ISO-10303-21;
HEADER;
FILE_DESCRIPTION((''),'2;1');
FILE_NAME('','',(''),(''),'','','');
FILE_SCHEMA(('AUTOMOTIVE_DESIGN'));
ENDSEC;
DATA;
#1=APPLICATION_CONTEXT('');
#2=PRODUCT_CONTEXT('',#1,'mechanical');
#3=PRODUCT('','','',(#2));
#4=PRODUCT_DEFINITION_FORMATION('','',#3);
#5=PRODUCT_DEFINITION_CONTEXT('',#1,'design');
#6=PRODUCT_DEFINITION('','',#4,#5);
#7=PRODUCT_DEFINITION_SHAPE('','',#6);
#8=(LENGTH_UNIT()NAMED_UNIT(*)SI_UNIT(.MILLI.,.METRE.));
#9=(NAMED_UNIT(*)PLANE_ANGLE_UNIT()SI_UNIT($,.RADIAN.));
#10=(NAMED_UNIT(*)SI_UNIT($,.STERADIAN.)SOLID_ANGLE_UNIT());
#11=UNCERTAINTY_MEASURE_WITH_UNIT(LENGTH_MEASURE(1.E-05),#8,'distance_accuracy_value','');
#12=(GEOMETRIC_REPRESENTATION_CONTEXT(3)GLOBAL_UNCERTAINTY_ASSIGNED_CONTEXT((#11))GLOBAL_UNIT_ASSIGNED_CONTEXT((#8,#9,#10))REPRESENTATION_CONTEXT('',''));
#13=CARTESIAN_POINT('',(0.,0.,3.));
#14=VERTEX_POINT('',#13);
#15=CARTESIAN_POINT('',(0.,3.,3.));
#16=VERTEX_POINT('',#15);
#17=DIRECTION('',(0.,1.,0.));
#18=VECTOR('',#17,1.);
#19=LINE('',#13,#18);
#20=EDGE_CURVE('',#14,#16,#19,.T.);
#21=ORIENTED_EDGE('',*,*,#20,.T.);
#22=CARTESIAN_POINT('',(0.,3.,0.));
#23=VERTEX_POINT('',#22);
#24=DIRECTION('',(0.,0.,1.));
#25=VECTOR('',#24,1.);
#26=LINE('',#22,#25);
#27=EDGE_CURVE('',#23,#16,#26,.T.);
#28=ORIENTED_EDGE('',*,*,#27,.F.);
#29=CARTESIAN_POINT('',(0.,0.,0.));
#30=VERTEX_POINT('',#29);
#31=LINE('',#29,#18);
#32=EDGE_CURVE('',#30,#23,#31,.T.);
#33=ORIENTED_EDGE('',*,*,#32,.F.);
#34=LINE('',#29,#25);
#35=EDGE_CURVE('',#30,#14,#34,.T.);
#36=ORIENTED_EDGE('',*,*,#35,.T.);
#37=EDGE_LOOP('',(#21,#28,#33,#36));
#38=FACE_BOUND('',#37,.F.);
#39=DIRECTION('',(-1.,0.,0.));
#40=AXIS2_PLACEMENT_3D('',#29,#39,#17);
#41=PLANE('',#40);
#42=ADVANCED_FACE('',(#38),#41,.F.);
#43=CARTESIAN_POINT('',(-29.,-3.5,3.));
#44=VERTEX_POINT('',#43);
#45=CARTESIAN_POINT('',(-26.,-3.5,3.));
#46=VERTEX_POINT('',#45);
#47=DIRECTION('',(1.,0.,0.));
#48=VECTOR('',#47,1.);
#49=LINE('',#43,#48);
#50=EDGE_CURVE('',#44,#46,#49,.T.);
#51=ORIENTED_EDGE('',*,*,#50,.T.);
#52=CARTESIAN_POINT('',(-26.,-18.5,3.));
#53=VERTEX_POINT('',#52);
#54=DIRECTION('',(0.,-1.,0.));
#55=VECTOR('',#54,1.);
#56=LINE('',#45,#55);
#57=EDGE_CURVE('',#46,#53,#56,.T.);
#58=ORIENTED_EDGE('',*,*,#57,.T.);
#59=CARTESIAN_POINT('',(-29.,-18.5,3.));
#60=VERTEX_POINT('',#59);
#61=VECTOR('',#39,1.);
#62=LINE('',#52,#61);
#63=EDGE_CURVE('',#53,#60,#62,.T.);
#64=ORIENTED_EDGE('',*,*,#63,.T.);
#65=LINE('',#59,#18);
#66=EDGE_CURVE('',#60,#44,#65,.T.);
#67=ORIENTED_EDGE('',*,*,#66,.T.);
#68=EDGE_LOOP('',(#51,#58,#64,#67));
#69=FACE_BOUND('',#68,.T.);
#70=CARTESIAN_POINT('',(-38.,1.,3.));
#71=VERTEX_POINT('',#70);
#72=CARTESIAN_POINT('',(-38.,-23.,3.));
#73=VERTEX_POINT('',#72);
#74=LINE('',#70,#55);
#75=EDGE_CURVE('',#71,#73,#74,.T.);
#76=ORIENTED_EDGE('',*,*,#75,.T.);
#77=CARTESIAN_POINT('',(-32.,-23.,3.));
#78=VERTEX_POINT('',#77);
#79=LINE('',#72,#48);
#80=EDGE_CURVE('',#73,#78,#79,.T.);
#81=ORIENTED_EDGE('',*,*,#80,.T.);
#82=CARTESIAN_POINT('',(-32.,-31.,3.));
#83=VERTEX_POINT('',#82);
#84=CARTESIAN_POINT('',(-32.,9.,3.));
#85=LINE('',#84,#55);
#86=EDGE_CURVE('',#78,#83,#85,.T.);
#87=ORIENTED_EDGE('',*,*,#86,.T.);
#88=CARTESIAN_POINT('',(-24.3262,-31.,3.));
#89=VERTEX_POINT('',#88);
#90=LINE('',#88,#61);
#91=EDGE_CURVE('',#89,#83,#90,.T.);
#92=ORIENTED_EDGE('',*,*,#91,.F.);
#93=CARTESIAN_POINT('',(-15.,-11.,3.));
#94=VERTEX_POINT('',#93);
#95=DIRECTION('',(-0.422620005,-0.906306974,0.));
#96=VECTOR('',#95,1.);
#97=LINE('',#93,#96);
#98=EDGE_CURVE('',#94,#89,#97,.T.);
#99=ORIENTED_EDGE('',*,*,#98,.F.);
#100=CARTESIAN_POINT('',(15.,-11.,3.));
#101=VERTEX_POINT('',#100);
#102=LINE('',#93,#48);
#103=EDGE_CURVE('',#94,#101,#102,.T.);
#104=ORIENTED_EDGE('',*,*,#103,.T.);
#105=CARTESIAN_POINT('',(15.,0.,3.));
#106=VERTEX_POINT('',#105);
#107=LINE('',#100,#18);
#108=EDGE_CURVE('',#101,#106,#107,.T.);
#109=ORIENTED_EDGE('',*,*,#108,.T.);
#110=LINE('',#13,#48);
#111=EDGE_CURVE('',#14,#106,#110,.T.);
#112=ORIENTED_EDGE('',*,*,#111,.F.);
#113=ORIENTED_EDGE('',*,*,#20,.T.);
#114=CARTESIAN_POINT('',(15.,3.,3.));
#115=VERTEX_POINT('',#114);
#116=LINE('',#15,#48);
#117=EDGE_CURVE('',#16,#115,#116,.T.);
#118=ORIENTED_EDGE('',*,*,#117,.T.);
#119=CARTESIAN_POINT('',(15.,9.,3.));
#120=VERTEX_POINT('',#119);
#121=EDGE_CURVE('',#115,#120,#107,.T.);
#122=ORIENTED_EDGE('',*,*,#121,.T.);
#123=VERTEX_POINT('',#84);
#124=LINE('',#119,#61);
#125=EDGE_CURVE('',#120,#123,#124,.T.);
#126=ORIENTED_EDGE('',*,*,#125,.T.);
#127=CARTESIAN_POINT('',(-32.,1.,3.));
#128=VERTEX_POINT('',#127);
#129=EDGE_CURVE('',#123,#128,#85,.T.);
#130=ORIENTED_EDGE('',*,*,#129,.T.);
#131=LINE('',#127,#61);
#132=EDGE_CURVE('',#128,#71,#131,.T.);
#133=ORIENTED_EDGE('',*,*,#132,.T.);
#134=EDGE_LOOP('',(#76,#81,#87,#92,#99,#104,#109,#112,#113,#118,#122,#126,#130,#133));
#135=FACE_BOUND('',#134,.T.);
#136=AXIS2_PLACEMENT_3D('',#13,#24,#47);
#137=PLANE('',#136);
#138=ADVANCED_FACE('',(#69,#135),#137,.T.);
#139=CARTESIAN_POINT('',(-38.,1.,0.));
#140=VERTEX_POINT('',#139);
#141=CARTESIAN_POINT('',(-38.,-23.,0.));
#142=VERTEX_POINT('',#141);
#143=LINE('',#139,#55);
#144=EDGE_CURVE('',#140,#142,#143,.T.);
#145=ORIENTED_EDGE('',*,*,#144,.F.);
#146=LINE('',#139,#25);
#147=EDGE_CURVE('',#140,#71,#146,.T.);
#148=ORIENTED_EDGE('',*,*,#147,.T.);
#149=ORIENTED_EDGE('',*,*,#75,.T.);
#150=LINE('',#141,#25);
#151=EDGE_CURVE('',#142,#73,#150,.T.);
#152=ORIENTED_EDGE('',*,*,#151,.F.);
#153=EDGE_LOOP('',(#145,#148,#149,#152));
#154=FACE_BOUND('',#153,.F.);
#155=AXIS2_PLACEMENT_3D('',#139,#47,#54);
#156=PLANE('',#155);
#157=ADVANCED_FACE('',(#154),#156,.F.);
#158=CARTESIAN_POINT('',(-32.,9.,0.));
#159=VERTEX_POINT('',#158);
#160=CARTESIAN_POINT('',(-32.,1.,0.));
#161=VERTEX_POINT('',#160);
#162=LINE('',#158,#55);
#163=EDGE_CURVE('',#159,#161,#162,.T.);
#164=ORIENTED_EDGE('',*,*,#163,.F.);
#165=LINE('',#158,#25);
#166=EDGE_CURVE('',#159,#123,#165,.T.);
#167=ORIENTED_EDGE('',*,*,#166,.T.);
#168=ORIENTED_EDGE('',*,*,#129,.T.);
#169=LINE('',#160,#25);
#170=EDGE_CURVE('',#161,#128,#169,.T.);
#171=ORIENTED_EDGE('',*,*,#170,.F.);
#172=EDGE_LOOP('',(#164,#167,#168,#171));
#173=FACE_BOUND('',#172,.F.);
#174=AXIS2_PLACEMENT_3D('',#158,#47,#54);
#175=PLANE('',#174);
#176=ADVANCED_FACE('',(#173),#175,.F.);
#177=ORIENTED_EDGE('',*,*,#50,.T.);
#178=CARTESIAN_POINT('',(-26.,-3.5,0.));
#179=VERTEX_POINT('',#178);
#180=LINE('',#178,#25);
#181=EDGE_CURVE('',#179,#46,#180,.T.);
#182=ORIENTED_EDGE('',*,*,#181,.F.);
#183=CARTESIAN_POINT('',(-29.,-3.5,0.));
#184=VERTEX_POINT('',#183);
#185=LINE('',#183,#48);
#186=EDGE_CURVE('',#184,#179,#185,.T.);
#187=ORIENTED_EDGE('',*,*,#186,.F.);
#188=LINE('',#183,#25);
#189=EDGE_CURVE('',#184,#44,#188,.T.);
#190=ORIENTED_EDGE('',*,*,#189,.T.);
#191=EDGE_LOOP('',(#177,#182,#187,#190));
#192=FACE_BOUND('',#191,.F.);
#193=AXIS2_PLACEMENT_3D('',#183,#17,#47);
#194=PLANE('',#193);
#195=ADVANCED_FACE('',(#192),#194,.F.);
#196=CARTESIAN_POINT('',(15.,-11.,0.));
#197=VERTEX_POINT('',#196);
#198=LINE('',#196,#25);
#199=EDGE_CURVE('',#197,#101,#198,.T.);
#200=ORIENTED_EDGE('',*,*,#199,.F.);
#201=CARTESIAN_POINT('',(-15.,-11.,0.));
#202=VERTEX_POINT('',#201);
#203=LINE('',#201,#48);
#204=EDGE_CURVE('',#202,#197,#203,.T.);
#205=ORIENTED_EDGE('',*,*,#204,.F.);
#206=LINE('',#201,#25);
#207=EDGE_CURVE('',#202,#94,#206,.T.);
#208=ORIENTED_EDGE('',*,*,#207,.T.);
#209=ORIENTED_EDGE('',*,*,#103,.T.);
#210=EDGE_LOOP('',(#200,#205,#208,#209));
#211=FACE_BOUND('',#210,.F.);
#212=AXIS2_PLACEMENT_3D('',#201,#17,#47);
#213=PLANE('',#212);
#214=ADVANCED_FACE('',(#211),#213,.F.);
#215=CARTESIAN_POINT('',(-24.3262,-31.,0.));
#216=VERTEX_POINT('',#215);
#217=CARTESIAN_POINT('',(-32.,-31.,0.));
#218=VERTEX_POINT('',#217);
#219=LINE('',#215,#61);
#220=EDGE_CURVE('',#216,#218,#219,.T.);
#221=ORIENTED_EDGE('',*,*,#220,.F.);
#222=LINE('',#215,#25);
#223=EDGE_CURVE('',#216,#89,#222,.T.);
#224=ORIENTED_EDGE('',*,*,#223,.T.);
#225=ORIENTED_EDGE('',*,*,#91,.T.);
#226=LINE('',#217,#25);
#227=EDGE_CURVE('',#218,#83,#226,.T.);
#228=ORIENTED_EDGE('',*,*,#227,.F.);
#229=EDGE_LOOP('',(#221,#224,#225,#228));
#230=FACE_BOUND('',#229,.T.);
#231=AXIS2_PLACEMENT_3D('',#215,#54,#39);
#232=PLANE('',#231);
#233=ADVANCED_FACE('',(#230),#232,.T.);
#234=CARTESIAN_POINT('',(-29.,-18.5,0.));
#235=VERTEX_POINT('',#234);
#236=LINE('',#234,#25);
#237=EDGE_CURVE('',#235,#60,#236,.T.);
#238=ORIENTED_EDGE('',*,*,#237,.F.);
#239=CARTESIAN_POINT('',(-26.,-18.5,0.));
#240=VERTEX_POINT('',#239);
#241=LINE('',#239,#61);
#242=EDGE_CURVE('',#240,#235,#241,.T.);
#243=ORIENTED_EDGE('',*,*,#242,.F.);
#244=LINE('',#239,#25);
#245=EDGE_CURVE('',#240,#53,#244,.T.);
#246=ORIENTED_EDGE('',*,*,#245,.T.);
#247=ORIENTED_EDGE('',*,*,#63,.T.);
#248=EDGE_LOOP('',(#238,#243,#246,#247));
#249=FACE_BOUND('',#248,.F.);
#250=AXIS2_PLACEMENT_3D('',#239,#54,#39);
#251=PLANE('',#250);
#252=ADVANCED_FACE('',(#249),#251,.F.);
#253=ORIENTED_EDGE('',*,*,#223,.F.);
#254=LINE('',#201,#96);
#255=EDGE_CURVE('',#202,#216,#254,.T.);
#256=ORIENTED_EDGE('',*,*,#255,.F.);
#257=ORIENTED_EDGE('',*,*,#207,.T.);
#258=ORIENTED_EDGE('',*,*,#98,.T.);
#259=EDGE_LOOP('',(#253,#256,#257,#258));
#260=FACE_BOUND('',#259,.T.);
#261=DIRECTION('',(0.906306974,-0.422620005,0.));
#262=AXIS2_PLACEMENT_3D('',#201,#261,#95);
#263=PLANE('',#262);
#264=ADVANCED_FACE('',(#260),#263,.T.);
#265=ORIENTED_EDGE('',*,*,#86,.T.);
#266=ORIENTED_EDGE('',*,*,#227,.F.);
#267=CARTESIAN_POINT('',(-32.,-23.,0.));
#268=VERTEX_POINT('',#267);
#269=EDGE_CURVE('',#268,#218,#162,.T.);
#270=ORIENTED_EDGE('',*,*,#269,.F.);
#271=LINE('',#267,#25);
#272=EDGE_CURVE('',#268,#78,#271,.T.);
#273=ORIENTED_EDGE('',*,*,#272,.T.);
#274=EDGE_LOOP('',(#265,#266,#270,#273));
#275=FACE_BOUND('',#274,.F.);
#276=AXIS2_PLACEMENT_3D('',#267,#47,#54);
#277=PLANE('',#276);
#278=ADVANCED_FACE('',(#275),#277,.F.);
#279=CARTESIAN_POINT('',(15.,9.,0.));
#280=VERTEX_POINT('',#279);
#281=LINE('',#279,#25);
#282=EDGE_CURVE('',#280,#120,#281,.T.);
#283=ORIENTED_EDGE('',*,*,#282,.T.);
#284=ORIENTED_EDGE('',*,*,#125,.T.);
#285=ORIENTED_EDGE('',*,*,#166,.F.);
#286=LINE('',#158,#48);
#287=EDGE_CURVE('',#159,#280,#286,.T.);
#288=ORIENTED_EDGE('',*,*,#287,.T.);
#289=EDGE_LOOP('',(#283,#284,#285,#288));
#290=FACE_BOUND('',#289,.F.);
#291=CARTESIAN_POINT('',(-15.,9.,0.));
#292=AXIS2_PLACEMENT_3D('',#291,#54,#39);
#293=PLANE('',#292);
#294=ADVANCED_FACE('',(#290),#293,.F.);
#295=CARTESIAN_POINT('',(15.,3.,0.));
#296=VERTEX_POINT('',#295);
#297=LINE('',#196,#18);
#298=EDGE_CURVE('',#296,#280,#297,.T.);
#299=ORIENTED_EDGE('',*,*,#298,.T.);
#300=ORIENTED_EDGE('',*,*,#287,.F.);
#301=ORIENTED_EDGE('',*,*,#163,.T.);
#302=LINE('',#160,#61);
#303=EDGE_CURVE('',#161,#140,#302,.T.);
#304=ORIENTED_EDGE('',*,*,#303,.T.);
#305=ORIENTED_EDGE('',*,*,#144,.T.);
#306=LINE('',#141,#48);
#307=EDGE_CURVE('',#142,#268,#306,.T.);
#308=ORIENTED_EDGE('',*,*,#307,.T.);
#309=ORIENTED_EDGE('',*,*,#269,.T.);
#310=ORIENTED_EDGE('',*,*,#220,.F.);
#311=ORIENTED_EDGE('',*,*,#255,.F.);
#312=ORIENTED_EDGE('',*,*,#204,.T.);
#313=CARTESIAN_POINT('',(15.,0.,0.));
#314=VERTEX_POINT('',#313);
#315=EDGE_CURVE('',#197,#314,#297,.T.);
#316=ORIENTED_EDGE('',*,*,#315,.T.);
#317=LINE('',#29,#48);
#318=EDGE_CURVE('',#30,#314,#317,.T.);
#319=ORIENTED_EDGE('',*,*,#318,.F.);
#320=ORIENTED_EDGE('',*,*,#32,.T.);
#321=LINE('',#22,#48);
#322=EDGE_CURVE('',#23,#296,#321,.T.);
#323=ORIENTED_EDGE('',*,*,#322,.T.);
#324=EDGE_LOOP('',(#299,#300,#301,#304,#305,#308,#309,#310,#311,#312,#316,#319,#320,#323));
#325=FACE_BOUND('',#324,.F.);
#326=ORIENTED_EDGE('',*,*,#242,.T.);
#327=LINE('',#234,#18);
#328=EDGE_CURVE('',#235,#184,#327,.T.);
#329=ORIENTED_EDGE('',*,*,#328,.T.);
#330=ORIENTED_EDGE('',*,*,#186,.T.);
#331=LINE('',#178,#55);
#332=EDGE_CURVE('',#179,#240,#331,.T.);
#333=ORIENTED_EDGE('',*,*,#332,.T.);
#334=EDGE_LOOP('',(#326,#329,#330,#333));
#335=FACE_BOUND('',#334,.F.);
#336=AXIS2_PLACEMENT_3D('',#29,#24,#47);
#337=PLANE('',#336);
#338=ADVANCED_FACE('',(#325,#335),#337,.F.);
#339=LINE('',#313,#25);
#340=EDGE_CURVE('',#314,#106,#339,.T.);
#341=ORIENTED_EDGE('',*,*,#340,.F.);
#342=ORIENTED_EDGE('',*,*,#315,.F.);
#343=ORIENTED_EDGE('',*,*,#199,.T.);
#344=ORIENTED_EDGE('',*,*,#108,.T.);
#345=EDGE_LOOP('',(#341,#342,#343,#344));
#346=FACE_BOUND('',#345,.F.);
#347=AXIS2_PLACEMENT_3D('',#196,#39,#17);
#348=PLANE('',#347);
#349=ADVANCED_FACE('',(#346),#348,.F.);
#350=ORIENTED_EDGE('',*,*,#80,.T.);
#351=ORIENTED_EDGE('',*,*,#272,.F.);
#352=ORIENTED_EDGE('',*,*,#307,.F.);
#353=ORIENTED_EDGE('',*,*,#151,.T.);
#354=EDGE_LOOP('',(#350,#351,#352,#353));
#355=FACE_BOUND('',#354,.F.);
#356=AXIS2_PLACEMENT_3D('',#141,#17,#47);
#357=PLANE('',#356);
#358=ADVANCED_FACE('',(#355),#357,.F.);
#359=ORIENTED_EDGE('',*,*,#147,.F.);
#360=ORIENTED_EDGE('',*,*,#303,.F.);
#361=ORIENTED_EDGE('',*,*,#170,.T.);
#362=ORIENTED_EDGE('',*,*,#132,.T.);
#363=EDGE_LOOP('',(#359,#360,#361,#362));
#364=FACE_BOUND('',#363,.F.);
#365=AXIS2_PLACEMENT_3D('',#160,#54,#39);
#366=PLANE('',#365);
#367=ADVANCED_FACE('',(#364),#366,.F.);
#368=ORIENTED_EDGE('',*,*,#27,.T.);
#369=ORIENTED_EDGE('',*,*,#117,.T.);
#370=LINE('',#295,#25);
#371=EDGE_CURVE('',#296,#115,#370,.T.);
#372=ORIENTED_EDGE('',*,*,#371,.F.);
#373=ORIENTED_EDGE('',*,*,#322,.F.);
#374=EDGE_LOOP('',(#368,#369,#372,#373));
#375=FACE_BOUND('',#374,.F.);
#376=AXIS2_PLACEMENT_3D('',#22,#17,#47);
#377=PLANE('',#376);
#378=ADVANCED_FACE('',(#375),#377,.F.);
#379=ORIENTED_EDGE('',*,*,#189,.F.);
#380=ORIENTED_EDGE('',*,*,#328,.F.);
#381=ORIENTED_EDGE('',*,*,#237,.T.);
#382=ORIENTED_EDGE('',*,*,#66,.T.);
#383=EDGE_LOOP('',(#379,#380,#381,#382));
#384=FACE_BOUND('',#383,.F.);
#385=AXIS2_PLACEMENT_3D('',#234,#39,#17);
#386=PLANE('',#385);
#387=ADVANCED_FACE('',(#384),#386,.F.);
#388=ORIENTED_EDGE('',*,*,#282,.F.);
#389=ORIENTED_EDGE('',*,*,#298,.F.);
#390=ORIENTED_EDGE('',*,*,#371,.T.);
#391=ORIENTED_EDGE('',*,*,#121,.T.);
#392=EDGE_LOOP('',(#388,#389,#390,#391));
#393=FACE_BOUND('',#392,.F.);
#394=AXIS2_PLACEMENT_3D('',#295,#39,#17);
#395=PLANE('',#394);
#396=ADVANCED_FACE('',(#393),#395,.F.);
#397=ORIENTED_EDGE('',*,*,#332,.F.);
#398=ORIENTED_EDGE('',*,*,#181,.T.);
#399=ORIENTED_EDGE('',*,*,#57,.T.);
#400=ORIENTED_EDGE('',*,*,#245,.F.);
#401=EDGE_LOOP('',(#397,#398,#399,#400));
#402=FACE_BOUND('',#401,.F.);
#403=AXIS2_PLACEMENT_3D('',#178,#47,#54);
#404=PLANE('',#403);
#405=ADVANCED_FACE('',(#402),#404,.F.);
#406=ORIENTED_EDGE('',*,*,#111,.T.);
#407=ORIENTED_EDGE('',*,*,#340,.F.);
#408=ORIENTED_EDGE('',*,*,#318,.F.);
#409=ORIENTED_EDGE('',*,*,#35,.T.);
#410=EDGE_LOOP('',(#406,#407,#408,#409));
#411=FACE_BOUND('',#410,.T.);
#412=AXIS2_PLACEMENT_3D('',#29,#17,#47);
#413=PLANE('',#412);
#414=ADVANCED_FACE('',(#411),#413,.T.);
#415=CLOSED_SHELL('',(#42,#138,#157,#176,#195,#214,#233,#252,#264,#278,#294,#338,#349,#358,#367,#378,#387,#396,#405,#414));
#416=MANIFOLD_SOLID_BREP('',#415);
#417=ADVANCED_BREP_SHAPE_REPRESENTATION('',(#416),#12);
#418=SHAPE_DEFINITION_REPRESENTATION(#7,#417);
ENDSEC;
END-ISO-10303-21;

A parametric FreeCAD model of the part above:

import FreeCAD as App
import Part
import Sketcher
Q = App.Units.Quantity


def add_polygon(sketch, points):
    """Adds a closed chain of lines whose ends are joined by coincident constraints."""
    first, n = sketch.GeometryCount, len(points)
    for a, b in zip(points, points[1:] + points[:1]):
        sketch.addGeometry(Part.LineSegment(App.Vector(*a, 0), App.Vector(*b, 0)), False)
    for i in range(n):
        sketch.addConstraint(Sketcher.Constraint("Coincident", first + i, 2, first + (i + 1) % n, 1))

doc = App.newDocument("Part")
params = doc.addObject("Spreadsheet::Sheet", "Params")
for row, (alias, value) in enumerate([
    ("sketch1_width", "15 mm"),
    ("sketch1_width2", "47 mm"),
    ("sketch1_width3", "6 mm"),
    ("sketch1_height", "8 mm"),
    ("sketch1_height2", "3 mm"),
    ("pad1_length", "3 mm"),
    ("sketch2_width", "3 mm"),
    ("sketch2_height", "15 mm"),
    ("pocket1_length", "3 mm"),
], start=1):
    params.set(f"A{row}", alias)
    params.set(f"B{row}", "=" + value)
    params.setAlias(f"B{row}", alias)

body = doc.addObject("PartDesign::Body", "Body")

sketch1 = doc.addObject("Sketcher::SketchObject", "Sketch")
body.addObject(sketch1)
sketch1.AttachmentSupport = (doc.XY_Plane, [""])
sketch1.MapMode = "FlatFace"
add_polygon(sketch1, [(15, 0), (0, 0), (0, 3), (15, 3), (15, 9), (-32, 9), (-32, 1), (-38, 1), (-38, -23), (-32, -23), (-32, -31), (-24.3, -31), (-15, -11), (15, -11)])
sketch1.addConstraint([
    Sketcher.Constraint("Horizontal", 0),
    Sketcher.Constraint("Vertical", 1),
    Sketcher.Constraint("Horizontal", 2),
    Sketcher.Constraint("Vertical", 3),
    Sketcher.Constraint("Horizontal", 4),
    Sketcher.Constraint("Vertical", 5),
    Sketcher.Constraint("Horizontal", 6),
    Sketcher.Constraint("Vertical", 7),
    Sketcher.Constraint("Horizontal", 8),
    Sketcher.Constraint("Vertical", 9),
    Sketcher.Constraint("Horizontal", 10),
    Sketcher.Constraint("Horizontal", 12),
    Sketcher.Constraint("Vertical", 13),
    Sketcher.Constraint("Coincident", 0, 2, -1, 1),
    Sketcher.Constraint("Vertical", 5, 2, 8, 2),
    Sketcher.Constraint("Vertical", 3, 2, 12, 2),
    Sketcher.Constraint("Equal", 8, 3),
    Sketcher.Constraint("Equal", 5, 9),
    Sketcher.Constraint("DistanceX", 0, 2, 0, 1, 15.0),
    Sketcher.Constraint("DistanceX", 4, 2, 4, 1, 47.0),
    Sketcher.Constraint("DistanceX", 6, 2, 6, 1, 6.0),
    Sketcher.Constraint("DistanceY", 5, 2, 5, 1, 8.0),
    Sketcher.Constraint("DistanceX", 11, 2, -1, 1, 15.0),
    Sketcher.Constraint("DistanceY", 9, 2, 4, 2, 40.0),
    Sketcher.Constraint("DistanceY", 10, 2, 11, 2, 20.0),
    Sketcher.Constraint("DistanceY", 1, 1, 1, 2, 3.0),
    Sketcher.Constraint("Angle", 11, Q("65 deg")),
])
sketch1.setExpression("Constraints[32]", "Params.sketch1_width")
sketch1.setExpression("Constraints[33]", "Params.sketch1_width2")
sketch1.setExpression("Constraints[34]", "Params.sketch1_width3")
sketch1.setExpression("Constraints[35]", "Params.sketch1_height")
sketch1.setExpression("Constraints[39]", "Params.sketch1_height2")
pad1 = doc.addObject("PartDesign::Pad", "Pad")
body.addObject(pad1)
pad1.Profile = sketch1
pad1.setExpression("Length", "Params.pad1_length")

sketch2 = doc.addObject("Sketcher::SketchObject", "Sketch001")
body.addObject(sketch2)
sketch2.AttachmentSupport = (doc.XY_Plane, [""])
sketch2.MapMode = "FlatFace"
add_polygon(sketch2, [(-26, -3.5), (-26, -18.5), (-29, -18.5), (-29, -3.5)])
sketch2.addConstraint([
    Sketcher.Constraint("Vertical", 0),
    Sketcher.Constraint("Horizontal", 1),
    Sketcher.Constraint("Vertical", 2),
    Sketcher.Constraint("Horizontal", 3),
    Sketcher.Constraint("DistanceX", 1, 2, 1, 1, 3.0),
    Sketcher.Constraint("DistanceY", 0, 2, 0, 1, 15.0),
    Sketcher.Constraint("DistanceX", 0, 2, -1, 1, 26.0),
    Sketcher.Constraint("DistanceY", 0, 2, -1, 1, 18.5),
])
sketch2.setExpression("Constraints[8]", "Params.sketch2_width")
sketch2.setExpression("Constraints[9]", "Params.sketch2_height")
pocket1 = doc.addObject("PartDesign::Pocket", "Pocket")
body.addObject(pocket1)
pocket1.Profile = sketch2
pocket1.setExpression("Length", "Params.pocket1_length")
pocket1.Reversed = True

doc.recompute()
